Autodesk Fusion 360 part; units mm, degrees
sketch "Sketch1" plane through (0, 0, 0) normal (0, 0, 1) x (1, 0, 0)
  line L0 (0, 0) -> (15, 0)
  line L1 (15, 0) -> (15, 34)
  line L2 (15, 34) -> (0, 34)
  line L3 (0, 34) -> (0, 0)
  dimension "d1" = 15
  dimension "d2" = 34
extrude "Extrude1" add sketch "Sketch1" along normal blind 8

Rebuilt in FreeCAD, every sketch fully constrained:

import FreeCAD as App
import Part
import Sketcher
from FreeCAD import Vector

doc = App.newDocument("Part")
body = doc.addObject("PartDesign::Body", "Body")

# Sketch on XY plane
sketch1 = body.newObject("Sketcher::SketchObject", "Sketch")
sketch1.AttachmentSupport = (doc.getObject("XY_Plane"), [""])
sketch1.MapMode = "FlatFace"
sketch1.addGeometry([
    Part.LineSegment(Vector(0, 34, 0), Vector(0, 0, 0)),
    Part.LineSegment(Vector(0, 0, 0), Vector(15, 0, 0)),
    Part.LineSegment(Vector(15, 0, 0), Vector(15, 34, 0)),
    Part.LineSegment(Vector(15, 34, 0), Vector(0, 34, 0)),
], False)
sketch1.addConstraint([
    Sketcher.Constraint("Coincident", 0, 2, 1, 1),
    Sketcher.Constraint("Coincident", 1, 2, 2, 1),
    Sketcher.Constraint("Coincident", 2, 2, 3, 1),
    Sketcher.Constraint("Coincident", 3, 2, 0, 1),
    Sketcher.Constraint("Vertical", 0),
    Sketcher.Constraint("Horizontal", 1),
    Sketcher.Constraint("Vertical", 2),
    Sketcher.Constraint("Horizontal", 3),
    Sketcher.Constraint("Coincident", 0, 2, -1, 1),
    Sketcher.Constraint("DistanceX", 1, 1, 1, 2, 15.0),
    Sketcher.Constraint("DistanceY", 0, 2, 0, 1, 34.0),
])
pad1 = body.newObject("PartDesign::Pad", "Pad")
pad1.Profile = sketch1
pad1.Length = 8

doc.recompute()
